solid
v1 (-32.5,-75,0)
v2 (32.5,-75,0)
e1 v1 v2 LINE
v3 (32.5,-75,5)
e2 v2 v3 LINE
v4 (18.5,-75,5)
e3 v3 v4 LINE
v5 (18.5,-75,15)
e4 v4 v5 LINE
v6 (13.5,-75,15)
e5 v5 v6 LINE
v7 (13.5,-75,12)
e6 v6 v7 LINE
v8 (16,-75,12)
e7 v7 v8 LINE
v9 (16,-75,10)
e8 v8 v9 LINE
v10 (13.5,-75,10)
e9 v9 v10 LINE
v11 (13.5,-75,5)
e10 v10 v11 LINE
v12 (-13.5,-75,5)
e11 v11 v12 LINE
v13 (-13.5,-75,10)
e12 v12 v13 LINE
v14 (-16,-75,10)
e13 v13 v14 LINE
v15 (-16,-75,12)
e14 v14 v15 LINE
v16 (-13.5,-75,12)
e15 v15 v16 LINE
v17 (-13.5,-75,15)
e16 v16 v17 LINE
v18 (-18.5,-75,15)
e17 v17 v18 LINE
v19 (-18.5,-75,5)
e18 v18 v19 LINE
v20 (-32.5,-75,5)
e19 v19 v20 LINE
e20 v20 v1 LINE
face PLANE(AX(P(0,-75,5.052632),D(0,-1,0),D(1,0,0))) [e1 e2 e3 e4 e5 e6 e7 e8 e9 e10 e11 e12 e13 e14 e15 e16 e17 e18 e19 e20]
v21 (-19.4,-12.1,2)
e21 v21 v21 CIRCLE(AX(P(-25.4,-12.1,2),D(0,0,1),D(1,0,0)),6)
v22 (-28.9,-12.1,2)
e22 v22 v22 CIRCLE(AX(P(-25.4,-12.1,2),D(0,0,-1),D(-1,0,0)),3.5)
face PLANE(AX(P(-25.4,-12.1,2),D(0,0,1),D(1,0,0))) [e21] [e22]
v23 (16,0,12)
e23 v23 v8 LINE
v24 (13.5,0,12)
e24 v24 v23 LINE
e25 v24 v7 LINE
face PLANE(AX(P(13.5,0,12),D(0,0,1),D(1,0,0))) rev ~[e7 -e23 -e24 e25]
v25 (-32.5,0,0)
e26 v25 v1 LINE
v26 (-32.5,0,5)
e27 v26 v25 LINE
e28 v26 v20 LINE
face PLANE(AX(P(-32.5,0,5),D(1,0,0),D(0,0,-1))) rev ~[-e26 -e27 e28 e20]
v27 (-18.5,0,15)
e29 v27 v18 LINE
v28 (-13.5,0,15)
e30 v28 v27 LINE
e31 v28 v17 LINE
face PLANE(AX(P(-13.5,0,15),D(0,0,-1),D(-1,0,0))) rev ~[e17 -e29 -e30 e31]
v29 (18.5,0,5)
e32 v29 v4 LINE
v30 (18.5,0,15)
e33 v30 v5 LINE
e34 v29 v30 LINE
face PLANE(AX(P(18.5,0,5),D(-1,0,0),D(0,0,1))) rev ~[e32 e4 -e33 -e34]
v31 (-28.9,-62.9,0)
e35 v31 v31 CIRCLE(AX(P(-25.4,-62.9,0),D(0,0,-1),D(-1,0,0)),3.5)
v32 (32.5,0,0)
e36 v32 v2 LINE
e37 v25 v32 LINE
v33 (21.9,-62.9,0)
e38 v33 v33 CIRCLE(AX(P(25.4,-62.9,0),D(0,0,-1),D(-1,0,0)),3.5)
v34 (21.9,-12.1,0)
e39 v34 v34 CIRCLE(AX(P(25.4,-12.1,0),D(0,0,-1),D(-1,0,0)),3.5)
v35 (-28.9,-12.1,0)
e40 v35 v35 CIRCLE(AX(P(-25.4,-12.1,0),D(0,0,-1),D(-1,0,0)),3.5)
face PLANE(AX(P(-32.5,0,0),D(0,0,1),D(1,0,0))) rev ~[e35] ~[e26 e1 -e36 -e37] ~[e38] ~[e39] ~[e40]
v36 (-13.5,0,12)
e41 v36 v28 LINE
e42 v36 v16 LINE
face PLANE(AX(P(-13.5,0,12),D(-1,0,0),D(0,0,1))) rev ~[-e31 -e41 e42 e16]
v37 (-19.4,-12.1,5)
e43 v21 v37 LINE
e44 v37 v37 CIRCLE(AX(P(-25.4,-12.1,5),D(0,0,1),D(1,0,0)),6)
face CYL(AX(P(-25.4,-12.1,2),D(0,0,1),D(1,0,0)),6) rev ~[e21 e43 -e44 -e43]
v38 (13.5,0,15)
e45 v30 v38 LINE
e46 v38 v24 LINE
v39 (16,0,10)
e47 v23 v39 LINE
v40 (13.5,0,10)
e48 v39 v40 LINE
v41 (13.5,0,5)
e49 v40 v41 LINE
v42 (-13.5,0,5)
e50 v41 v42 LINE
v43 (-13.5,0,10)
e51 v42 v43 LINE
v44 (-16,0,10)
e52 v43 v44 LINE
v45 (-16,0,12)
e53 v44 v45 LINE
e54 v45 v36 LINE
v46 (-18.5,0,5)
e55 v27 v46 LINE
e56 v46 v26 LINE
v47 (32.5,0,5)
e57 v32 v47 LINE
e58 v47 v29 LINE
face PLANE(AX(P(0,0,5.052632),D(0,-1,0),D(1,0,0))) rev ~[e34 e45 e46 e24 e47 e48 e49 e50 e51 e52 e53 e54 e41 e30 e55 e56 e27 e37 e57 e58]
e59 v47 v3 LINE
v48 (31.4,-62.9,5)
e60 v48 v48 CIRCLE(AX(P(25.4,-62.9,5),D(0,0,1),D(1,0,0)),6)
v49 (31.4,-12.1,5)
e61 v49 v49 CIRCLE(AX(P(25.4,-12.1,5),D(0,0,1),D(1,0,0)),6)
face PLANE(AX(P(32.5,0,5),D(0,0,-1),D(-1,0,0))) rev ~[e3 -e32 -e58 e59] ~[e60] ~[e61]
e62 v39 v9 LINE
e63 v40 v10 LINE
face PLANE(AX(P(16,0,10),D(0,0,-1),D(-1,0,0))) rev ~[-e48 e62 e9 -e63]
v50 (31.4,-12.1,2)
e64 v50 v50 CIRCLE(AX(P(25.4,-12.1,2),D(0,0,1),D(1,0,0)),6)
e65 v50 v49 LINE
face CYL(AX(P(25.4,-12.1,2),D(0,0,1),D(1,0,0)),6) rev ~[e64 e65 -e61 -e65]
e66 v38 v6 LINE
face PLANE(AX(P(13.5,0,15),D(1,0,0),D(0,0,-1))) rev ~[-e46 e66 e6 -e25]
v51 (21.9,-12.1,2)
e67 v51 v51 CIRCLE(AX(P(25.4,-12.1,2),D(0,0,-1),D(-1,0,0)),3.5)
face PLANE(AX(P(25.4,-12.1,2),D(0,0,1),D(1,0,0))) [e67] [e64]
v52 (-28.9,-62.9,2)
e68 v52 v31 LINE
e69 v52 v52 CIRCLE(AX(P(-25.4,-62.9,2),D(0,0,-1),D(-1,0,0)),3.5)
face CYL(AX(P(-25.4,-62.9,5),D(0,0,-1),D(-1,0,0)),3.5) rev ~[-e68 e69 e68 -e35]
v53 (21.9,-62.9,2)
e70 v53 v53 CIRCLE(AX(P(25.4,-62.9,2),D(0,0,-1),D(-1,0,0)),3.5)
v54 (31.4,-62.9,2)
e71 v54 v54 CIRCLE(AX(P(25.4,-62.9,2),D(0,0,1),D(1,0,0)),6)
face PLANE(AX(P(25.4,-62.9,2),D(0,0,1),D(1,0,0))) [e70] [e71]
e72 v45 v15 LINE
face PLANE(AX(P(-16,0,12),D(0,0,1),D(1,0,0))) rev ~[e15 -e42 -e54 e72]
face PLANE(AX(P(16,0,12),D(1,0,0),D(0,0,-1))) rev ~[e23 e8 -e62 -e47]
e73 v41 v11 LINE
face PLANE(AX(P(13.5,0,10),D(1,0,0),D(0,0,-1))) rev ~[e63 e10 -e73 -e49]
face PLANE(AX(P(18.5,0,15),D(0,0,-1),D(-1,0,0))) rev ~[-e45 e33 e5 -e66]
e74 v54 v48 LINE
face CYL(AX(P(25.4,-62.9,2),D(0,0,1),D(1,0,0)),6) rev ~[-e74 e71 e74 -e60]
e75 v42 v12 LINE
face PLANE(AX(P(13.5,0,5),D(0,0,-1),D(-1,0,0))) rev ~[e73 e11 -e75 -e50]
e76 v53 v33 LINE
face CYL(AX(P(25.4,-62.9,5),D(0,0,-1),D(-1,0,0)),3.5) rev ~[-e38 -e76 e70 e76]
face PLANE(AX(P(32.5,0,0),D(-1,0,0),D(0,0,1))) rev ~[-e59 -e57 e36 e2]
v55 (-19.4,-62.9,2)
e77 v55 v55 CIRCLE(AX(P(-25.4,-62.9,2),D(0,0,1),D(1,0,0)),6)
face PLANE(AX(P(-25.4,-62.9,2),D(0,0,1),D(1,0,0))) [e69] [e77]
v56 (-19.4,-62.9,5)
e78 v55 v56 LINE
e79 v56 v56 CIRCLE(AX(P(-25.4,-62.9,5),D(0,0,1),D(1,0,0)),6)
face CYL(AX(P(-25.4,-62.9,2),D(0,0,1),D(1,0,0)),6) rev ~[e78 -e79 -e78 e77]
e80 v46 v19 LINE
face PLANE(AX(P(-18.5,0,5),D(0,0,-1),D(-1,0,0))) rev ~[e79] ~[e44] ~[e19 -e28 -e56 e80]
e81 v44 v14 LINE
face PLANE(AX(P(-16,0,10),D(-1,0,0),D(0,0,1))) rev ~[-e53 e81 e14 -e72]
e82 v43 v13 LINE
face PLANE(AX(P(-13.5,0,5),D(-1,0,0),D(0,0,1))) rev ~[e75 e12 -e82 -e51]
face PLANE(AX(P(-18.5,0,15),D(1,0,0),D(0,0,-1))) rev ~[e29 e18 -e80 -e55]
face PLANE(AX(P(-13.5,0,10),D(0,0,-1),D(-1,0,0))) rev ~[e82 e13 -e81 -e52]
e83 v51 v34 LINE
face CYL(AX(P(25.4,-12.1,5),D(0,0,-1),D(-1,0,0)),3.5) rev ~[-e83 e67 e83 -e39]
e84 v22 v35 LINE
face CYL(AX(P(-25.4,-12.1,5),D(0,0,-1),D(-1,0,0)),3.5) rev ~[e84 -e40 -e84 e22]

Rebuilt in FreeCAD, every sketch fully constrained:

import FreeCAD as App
import Part
import Sketcher

V = App.Vector

doc = App.newDocument("Part")
body = doc.addObject("PartDesign::Body", "Body")

# Sketch on XZ plane
sketch1 = doc.addObject("Sketcher::SketchObject", "Sketch")
body.addObject(sketch1)
sketch1.AttachmentSupport = (doc.XZ_Plane, [""])
sketch1.MapMode = "FlatFace"
sketch1.addGeometry(Part.LineSegment(V(-32.5, 0, 0), V(32.5, 0, 0)), False)
sketch1.addGeometry(Part.LineSegment(V(32.5, 0, 0), V(32.5, 5, 0)), False)
sketch1.addGeometry(Part.LineSegment(V(32.5, 5, 0), V(18.5, 5, 0)), False)
sketch1.addGeometry(Part.LineSegment(V(18.5, 5, 0), V(18.5, 15, 0)), False)
sketch1.addGeometry(Part.LineSegment(V(18.5, 15, 0), V(13.5, 15, 0)), False)
sketch1.addGeometry(Part.LineSegment(V(13.5, 15, 0), V(13.5, 12, 0)), False)
sketch1.addGeometry(Part.LineSegment(V(13.5, 12, 0), V(16, 12, 0)), False)
sketch1.addGeometry(Part.LineSegment(V(16, 12, 0), V(16, 10, 0)), False)
sketch1.addGeometry(Part.LineSegment(V(16, 10, 0), V(13.5, 10, 0)), False)
sketch1.addGeometry(Part.LineSegment(V(13.5, 10, 0), V(13.5, 5, 0)), False)
sketch1.addGeometry(Part.LineSegment(V(13.5, 5, 0), V(-13.5, 5, 0)), False)
sketch1.addGeometry(Part.LineSegment(V(-13.5, 5, 0), V(-13.5, 10, 0)), False)
sketch1.addGeometry(Part.LineSegment(V(-13.5, 10, 0), V(-16, 10, 0)), False)
sketch1.addGeometry(Part.LineSegment(V(-16, 10, 0), V(-16, 12, 0)), False)
sketch1.addGeometry(Part.LineSegment(V(-16, 12, 0), V(-13.5, 12, 0)), False)
sketch1.addGeometry(Part.LineSegment(V(-13.5, 12, 0), V(-13.5, 15, 0)), False)
sketch1.addGeometry(Part.LineSegment(V(-13.5, 15, 0), V(-18.5, 15, 0)), False)
sketch1.addGeometry(Part.LineSegment(V(-18.5, 15, 0), V(-18.5, 5, 0)), False)
sketch1.addGeometry(Part.LineSegment(V(-18.5, 5, 0), V(-32.5, 5, 0)), False)
sketch1.addGeometry(Part.LineSegment(V(-32.5, 5, 0), V(-32.5, 0, 0)), False)
sketch1.addConstraint(Sketcher.Constraint("Coincident", 0, 2, 1, 1))
sketch1.addConstraint(Sketcher.Constraint("Coincident", 1, 2, 2, 1))
sketch1.addConstraint(Sketcher.Constraint("Coincident", 2, 2, 3, 1))
sketch1.addConstraint(Sketcher.Constraint("Coincident", 3, 2, 4, 1))
sketch1.addConstraint(Sketcher.Constraint("Coincident", 4, 2, 5, 1))
sketch1.addConstraint(Sketcher.Constraint("Coincident", 5, 2, 6, 1))
sketch1.addConstraint(Sketcher.Constraint("Coincident", 6, 2, 7, 1))
sketch1.addConstraint(Sketcher.Constraint("Coincident", 7, 2, 8, 1))
sketch1.addConstraint(Sketcher.Constraint("Coincident", 8, 2, 9, 1))
sketch1.addConstraint(Sketcher.Constraint("Coincident", 9, 2, 10, 1))
sketch1.addConstraint(Sketcher.Constraint("Coincident", 10, 2, 11, 1))
sketch1.addConstraint(Sketcher.Constraint("Coincident", 11, 2, 12, 1))
sketch1.addConstraint(Sketcher.Constraint("Coincident", 12, 2, 13, 1))
sketch1.addConstraint(Sketcher.Constraint("Coincident", 13, 2, 14, 1))
sketch1.addConstraint(Sketcher.Constraint("Coincident", 14, 2, 15, 1))
sketch1.addConstraint(Sketcher.Constraint("Coincident", 15, 2, 16, 1))
sketch1.addConstraint(Sketcher.Constraint("Coincident", 16, 2, 17, 1))
sketch1.addConstraint(Sketcher.Constraint("Coincident", 17, 2, 18, 1))
sketch1.addConstraint(Sketcher.Constraint("Coincident", 18, 2, 19, 1))
sketch1.addConstraint(Sketcher.Constraint("Coincident", 19, 2, 0, 1))
sketch1.addConstraint(Sketcher.Constraint("Horizontal", 0))
sketch1.addConstraint(Sketcher.Constraint("Vertical", 1))
sketch1.addConstraint(Sketcher.Constraint("Horizontal", 2))
sketch1.addConstraint(Sketcher.Constraint("Vertical", 3))
sketch1.addConstraint(Sketcher.Constraint("Horizontal", 4))
sketch1.addConstraint(Sketcher.Constraint("Vertical", 5))
sketch1.addConstraint(Sketcher.Constraint("Horizontal", 6))
sketch1.addConstraint(Sketcher.Constraint("Vertical", 7))
sketch1.addConstraint(Sketcher.Constraint("Horizontal", 8))
sketch1.addConstraint(Sketcher.Constraint("Vertical", 9))
sketch1.addConstraint(Sketcher.Constraint("Horizontal", 10))
sketch1.addConstraint(Sketcher.Constraint("Vertical", 11))
sketch1.addConstraint(Sketcher.Constraint("Horizontal", 12))
sketch1.addConstraint(Sketcher.Constraint("Vertical", 13))
sketch1.addConstraint(Sketcher.Constraint("Horizontal", 14))
sketch1.addConstraint(Sketcher.Constraint("Vertical", 15))
sketch1.addConstraint(Sketcher.Constraint("Horizontal", 16))
sketch1.addConstraint(Sketcher.Constraint("Vertical", 17))
sketch1.addConstraint(Sketcher.Constraint("Horizontal", 18))
sketch1.addConstraint(Sketcher.Constraint("Vertical", 19))
sketch1.addConstraint(Sketcher.Constraint("Symmetric", 0, 2, 19, 2, -1, 1))
sketch1.addConstraint(Sketcher.Constraint("Symmetric", 8, 2, 11, 2, -2))
sketch1.addConstraint(Sketcher.Constraint("Symmetric", 6, 2, 13, 2, -2))
sketch1.addConstraint(Sketcher.Constraint("Symmetric", 4, 2, 15, 2, -2))
sketch1.addConstraint(Sketcher.Constraint("Symmetric", 2, 2, 17, 2, -2))
sketch1.addConstraint(Sketcher.Constraint("Horizontal", 2, 2, 9, 2))
sketch1.addConstraint(Sketcher.Constraint("Vertical", 5, 2, 8, 2))
sketch1.addConstraint(Sketcher.Constraint("Equal", 16, 1))
sketch1.addConstraint(Sketcher.Constraint("Equal", 1, 9))
sketch1.addConstraint(Sketcher.Constraint("DistanceX", 0, 1, 0, 2, 65.0))
sketch1.addConstraint(Sketcher.Constraint("DistanceX", 2, 2, 2, 1, 14.0))
sketch1.addConstraint(Sketcher.Constraint("DistanceX", 4, 2, 4, 1, 5.0))
sketch1.addConstraint(Sketcher.Constraint("DistanceY", 3, 1, 3, 2, 10.0))
sketch1.addConstraint(Sketcher.Constraint("DistanceY", 5, 2, 5, 1, 3.0))
sketch1.addConstraint(Sketcher.Constraint("DistanceX", 6, 1, 6, 2, 2.5))
pad1 = doc.addObject("PartDesign::Pad", "Pad")
body.addObject(pad1)
pad1.Profile = sketch1
pad1.Length = 75

# Sketch on XY plane
sketch2 = doc.addObject("Sketcher::SketchObject", "Sketch001")
body.addObject(sketch2)
sketch2.AttachmentSupport = (doc.XY_Plane, [""])
sketch2.MapMode = "FlatFace"
sketch2.AttachmentOffset = App.Placement(V(0, 0, 5), App.Rotation())
sketch2.addGeometry(Part.Circle(V(-25.4, -12.1, 0), V(0, 0, 1), 3.5), False)
sketch2.addGeometry(Part.Circle(V(-25.4, -62.9, 0), V(0, 0, 1), 3.5), False)
sketch2.addGeometry(Part.Circle(V(25.4, -62.9, 0), V(0, 0, 1), 3.5), False)
sketch2.addGeometry(Part.Circle(V(25.4, -12.1, 0), V(0, 0, 1), 3.5), False)
sketch2.addConstraint(Sketcher.Constraint("Equal", 0, 1))
sketch2.addConstraint(Sketcher.Constraint("Equal", 1, 2))
sketch2.addConstraint(Sketcher.Constraint("Equal", 2, 3))
sketch2.addConstraint(Sketcher.Constraint("Symmetric", 1, 3, 2, 3, -2))
sketch2.addConstraint(Sketcher.Constraint("Symmetric", 0, 3, 3, 3, -2))
sketch2.addConstraint(Sketcher.Constraint("Vertical", 0, 3, 1, 3))
sketch2.addConstraint(Sketcher.Constraint("Diameter", 0, 7.0))
sketch2.addConstraint(Sketcher.Constraint("DistanceX", 0, 3, -1, 1, 25.4))
sketch2.addConstraint(Sketcher.Constraint("DistanceY", 0, 3, -1, 1, 12.1))
sketch2.addConstraint(Sketcher.Constraint("DistanceY", 1, 3, -1, 1, 62.9))
doc.recompute()
hole = doc.addObject("PartDesign::Hole", "Hole")
body.addObject(hole)
hole.Profile = sketch2
hole.ThreadType = "None"
hole.Diameter = 7
hole.DepthType = "ThroughAll"
hole.HoleCutType = "Counterbore"
hole.HoleCutDiameter = 12
hole.HoleCutDepth = 3

doc.recompute()
